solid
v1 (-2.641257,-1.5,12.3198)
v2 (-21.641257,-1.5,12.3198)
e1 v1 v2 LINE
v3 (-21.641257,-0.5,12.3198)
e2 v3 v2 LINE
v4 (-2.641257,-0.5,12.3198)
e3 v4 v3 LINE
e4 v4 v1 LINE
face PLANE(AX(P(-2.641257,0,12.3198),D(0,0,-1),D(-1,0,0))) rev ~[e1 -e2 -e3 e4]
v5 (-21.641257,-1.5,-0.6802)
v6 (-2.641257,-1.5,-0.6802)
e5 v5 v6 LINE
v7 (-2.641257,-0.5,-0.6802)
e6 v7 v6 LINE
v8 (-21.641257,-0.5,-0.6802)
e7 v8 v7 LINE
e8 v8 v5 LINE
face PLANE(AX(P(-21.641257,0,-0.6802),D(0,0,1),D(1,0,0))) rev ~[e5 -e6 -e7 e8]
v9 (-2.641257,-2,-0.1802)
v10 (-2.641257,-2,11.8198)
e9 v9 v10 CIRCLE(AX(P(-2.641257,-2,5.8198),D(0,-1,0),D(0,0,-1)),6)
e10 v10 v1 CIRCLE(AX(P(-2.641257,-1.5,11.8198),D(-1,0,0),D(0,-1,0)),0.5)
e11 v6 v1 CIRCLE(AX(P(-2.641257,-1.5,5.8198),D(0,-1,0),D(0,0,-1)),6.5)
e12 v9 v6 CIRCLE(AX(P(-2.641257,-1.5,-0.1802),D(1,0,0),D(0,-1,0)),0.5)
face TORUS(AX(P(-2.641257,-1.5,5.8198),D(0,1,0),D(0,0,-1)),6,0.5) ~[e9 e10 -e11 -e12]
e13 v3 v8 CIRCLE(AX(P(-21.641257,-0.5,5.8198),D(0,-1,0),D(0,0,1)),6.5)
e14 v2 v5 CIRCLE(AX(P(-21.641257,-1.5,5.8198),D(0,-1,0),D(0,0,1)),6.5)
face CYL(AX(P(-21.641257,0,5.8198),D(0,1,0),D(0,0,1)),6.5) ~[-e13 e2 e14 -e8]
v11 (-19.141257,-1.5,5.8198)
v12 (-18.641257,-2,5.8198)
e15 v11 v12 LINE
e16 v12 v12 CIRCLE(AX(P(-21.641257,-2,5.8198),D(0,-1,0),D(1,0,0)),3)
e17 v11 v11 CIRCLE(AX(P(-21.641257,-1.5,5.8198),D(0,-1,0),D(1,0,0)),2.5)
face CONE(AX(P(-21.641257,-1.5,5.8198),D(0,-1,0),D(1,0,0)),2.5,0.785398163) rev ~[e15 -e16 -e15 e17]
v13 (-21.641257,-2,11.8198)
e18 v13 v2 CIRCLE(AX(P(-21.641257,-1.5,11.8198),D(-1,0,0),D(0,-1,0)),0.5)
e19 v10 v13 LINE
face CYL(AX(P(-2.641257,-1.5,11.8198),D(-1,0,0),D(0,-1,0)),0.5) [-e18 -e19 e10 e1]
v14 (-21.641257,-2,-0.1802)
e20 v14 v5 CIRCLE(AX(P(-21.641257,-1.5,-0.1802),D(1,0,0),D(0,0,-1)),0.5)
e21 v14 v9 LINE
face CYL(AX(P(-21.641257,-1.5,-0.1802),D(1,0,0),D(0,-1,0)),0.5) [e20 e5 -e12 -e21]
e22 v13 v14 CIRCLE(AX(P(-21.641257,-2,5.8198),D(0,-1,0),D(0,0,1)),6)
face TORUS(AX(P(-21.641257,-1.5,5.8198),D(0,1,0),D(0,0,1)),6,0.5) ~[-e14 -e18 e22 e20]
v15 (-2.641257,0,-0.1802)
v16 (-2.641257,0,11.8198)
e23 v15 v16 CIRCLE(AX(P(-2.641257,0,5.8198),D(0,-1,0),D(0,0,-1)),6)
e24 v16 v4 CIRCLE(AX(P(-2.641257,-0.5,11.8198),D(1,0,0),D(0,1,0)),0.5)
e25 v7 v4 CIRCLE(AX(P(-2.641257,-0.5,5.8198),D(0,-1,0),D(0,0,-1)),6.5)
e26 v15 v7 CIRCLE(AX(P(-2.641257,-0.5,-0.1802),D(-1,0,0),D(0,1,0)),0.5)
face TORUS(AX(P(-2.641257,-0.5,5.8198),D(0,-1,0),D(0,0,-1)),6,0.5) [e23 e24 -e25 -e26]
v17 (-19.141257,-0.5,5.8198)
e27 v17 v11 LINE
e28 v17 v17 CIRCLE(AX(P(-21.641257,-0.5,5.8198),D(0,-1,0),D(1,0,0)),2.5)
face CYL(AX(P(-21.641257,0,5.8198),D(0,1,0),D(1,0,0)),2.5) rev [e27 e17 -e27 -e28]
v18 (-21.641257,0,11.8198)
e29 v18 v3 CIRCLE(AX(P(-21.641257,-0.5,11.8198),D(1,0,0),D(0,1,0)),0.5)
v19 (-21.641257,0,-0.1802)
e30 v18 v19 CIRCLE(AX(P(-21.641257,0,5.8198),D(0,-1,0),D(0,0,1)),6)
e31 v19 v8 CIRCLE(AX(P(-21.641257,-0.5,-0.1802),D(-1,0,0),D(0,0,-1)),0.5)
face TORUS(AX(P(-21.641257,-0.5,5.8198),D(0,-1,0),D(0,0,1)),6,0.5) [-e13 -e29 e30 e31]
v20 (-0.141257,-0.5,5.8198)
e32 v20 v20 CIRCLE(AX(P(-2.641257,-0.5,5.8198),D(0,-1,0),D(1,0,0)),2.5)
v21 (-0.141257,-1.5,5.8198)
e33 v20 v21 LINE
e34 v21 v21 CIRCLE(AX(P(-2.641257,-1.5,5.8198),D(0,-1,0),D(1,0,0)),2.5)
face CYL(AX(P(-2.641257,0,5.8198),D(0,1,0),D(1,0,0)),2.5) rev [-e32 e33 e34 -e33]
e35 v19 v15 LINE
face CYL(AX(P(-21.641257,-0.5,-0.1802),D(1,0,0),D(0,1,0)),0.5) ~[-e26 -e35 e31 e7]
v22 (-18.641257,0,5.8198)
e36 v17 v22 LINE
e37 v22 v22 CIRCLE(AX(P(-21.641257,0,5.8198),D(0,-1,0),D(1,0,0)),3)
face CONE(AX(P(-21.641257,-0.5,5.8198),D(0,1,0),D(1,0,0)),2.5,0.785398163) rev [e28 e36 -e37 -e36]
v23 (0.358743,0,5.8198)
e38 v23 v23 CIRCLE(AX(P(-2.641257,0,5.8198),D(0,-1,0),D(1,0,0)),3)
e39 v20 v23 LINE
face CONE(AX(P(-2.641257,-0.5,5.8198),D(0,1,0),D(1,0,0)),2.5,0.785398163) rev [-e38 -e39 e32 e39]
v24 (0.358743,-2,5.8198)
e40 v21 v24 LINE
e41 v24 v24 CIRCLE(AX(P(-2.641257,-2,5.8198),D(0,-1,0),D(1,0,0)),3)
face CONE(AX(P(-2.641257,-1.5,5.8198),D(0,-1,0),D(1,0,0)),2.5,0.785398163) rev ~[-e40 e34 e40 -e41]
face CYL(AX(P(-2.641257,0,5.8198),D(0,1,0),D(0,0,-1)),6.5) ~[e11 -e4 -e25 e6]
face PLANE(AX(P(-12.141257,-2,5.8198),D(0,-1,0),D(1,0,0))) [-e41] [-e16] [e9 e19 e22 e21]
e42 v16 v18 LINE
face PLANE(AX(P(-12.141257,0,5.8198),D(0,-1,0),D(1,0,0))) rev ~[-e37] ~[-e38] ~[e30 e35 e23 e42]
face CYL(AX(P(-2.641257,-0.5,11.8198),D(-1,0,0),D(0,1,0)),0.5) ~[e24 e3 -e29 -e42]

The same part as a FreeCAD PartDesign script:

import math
import FreeCAD as App
import Part
import Sketcher


def edges_at(feature, points):
    """Names of the edges that pass closest to the given points."""
    edges = feature.Shape.Edges
    near = lambda p: min(range(len(edges)), key=lambda i: edges[i].distToShape(Part.Vertex(*p))[0])
    return sorted({f"Edge{near(p) + 1}" for p in points})

doc = App.newDocument("Part")
body = doc.addObject("PartDesign::Body", "Body")

sketch1 = doc.addObject("Sketcher::SketchObject", "Sketch")
body.addObject(sketch1)
sketch1.AttachmentSupport = (doc.XZ_Plane, [""])
sketch1.MapMode = "FlatFace"
sketch1.addGeometry(Part.LineSegment(App.Vector(-2.6, 12.3, 0), App.Vector(-21.6, 12.3, 0)), False)
sketch1.addGeometry(Part.ArcOfCircle(Part.Circle(App.Vector(-21.6, 5.8, 0), App.Vector(0, 0, 1), 6.5), math.radians(90), math.radians(270)), False)
sketch1.addGeometry(Part.LineSegment(App.Vector(-21.6, -0.7, 0), App.Vector(-2.6, -0.7, 0)), False)
sketch1.addGeometry(Part.ArcOfCircle(Part.Circle(App.Vector(-2.6, 5.8, 0), App.Vector(0, 0, 1), 6.5), math.radians(-90), math.radians(90)), False)
sketch1.addGeometry(Part.Circle(App.Vector(-21.6, 5.8, 0), App.Vector(0, 0, 1), 2.5), False)
sketch1.addGeometry(Part.Circle(App.Vector(-2.6, 5.8, 0), App.Vector(0, 0, 1), 2.5), False)
sketch1.addConstraint(Sketcher.Constraint("Tangent", 0, 2, 1, 1))
sketch1.addConstraint(Sketcher.Constraint("Tangent", 1, 2, 2, 1))
sketch1.addConstraint(Sketcher.Constraint("Tangent", 2, 2, 3, 1))
sketch1.addConstraint(Sketcher.Constraint("Tangent", 3, 2, 0, 1))
sketch1.addConstraint(Sketcher.Constraint("Horizontal", 0))
sketch1.addConstraint(Sketcher.Constraint("Horizontal", 2))
sketch1.addConstraint(Sketcher.Constraint("Coincident", 4, 3, 1, 3))
sketch1.addConstraint(Sketcher.Constraint("Coincident", 5, 3, 3, 3))
sketch1.addConstraint(Sketcher.Constraint("Equal", 4, 5))
sketch1.addConstraint(Sketcher.Constraint("Diameter", 4, 5.0))
sketch1.addConstraint(Sketcher.Constraint("Radius", 1, 6.5))
sketch1.addConstraint(Sketcher.Constraint("DistanceX", 0, 2, 0, 1, 19.0))
sketch1.addConstraint(Sketcher.Constraint("DistanceY", -1, 1, 1, 3, 5.8198))
sketch1.addConstraint(Sketcher.Constraint("DistanceX", 1, 3, -1, 1, 21.641257))
pad1 = doc.addObject("PartDesign::Pad", "Pad")
body.addObject(pad1)
pad1.Profile = sketch1
pad1.Length = 2
doc.recompute()

chamfer = doc.addObject("PartDesign::Chamfer", "Chamfer")
body.addObject(chamfer)
chamfer.Base = (pad1, edges_at(pad1, [
    (-24.141, -2, 5.82),
    (-5.141, -2, 5.82),
    (-5.141, 0, 5.82),
    (-24.141, 0, 5.82),
]))
chamfer.Size = 0.5
doc.recompute()

fillet = doc.addObject("PartDesign::Fillet", "Fillet")
body.addObject(fillet)
fillet.Base = (chamfer, edges_at(chamfer, [(-12.141, 0, 12.32), (-12.141, -2, 12.32)]))
fillet.Radius = 0.5

doc.recompute()
